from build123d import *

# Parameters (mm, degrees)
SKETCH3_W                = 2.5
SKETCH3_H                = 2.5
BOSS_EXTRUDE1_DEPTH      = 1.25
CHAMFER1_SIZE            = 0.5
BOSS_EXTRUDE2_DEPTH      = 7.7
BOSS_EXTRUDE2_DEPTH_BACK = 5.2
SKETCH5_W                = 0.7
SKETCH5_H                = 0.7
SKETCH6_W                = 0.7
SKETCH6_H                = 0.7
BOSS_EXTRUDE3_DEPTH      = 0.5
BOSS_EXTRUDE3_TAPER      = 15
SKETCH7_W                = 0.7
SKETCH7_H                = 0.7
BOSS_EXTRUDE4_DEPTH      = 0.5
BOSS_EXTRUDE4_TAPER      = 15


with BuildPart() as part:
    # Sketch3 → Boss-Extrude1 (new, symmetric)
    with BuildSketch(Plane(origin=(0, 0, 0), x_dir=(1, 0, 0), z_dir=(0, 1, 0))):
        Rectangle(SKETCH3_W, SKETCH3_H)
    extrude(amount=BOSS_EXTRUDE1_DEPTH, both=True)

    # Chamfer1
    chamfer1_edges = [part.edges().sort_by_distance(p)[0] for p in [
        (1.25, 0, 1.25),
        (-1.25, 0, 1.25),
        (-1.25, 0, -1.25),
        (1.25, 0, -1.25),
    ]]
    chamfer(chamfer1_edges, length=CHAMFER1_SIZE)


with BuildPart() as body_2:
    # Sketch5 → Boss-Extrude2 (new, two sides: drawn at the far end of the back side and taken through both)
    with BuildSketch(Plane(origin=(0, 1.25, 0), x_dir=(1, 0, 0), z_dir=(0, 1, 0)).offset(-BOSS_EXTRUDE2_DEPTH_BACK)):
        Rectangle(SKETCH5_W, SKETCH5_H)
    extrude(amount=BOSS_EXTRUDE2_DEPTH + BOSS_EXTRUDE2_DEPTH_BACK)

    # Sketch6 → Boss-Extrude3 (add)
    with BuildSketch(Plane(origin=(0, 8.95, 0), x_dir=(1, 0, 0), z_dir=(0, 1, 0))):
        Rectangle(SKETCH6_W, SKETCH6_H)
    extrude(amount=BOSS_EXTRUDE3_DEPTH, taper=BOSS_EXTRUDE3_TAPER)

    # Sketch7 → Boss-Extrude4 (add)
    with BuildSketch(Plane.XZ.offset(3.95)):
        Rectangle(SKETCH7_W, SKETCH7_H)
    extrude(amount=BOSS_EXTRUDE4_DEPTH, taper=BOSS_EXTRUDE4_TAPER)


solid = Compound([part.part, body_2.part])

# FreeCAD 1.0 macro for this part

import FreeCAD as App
import Part
import Sketcher

V = App.Vector
Q = App.Units.Quantity


def edges_at(feature, points):
    """Names of the edges that pass closest to the given points."""
    edges = feature.Shape.Edges
    near = lambda p: min(range(len(edges)), key=lambda i: edges[i].distToShape(Part.Vertex(*p))[0])
    return sorted({f"Edge{near(p) + 1}" for p in points})

doc = App.newDocument("Part")
body = doc.addObject("PartDesign::Body", "Body")

# Sketch on XZ plane
sketch1 = body.newObject("Sketcher::SketchObject", "Sketch")
sketch1.AttachmentSupport = (doc.getObject("XZ_Plane"), [""])
sketch1.MapMode = "FlatFace"
sketch1.addGeometry([
    Part.LineSegment(V(-1.2, -1.2, 0), V(-1.2, 1.2, 0)),
    Part.LineSegment(V(-1.2, 1.2, 0), V(1.2, 1.2, 0)),
    Part.LineSegment(V(1.2, 1.2, 0), V(1.2, -1.2, 0)),
    Part.LineSegment(V(1.2, -1.2, 0), V(-1.2, -1.2, 0)),
], False)
sketch1.addConstraint([
    Sketcher.Constraint("Coincident", 0, 2, 1, 1),
    Sketcher.Constraint("Coincident", 1, 2, 2, 1),
    Sketcher.Constraint("Coincident", 2, 2, 3, 1),
    Sketcher.Constraint("Coincident", 3, 2, 0, 1),
    Sketcher.Constraint("Vertical", 0),
    Sketcher.Constraint("Horizontal", 1),
    Sketcher.Constraint("Vertical", 2),
    Sketcher.Constraint("Horizontal", 3),
    Sketcher.Constraint("Symmetric", 0, 2, 2, 2, -1, 1),
    Sketcher.Constraint("Equal", 3, 0),
    Sketcher.Constraint("DistanceX", 1, 1, 1, 2, Q("2.5 mm")),
])
pad1 = body.newObject("PartDesign::Pad", "Pad")
pad1.Profile = sketch1
pad1.Length = 2.5
pad1.Midplane = True
doc.recompute()

chamfer = body.newObject("PartDesign::Chamfer", "Chamfer")
chamfer.Base = (pad1, edges_at(pad1, [
    (1.25, 0, 1.25),
    (-1.25, 0, 1.25),
    (-1.25, 0, -1.25),
    (1.25, 0, -1.25),
]))
chamfer.Size = 0.5
body2 = doc.addObject("PartDesign::Body", "Body001")

# Sketch on XZ plane
sketch2 = body2.newObject("Sketcher::SketchObject", "Sketch001")
sketch2.AttachmentSupport = (doc.getObject("XZ_Plane001"), [""])
sketch2.MapMode = "FlatFace"
sketch2.AttachmentOffset = App.Placement(V(0, 0, -1.25), App.Rotation())
sketch2.addGeometry([
    Part.LineSegment(V(-0.3, -0.3, 0), V(-0.3, 0.3, 0)),
    Part.LineSegment(V(-0.3, 0.3, 0), V(0.3, 0.3, 0)),
    Part.LineSegment(V(0.3, 0.3, 0), V(0.3, -0.3, 0)),
    Part.LineSegment(V(0.3, -0.3, 0), V(-0.3, -0.3, 0)),
], False)
sketch2.addConstraint([
    Sketcher.Constraint("Coincident", 0, 2, 1, 1),
    Sketcher.Constraint("Coincident", 1, 2, 2, 1),
    Sketcher.Constraint("Coincident", 2, 2, 3, 1),
    Sketcher.Constraint("Coincident", 3, 2, 0, 1),
    Sketcher.Constraint("Vertical", 0),
    Sketcher.Constraint("Horizontal", 1),
    Sketcher.Constraint("Vertical", 2),
    Sketcher.Constraint("Horizontal", 3),
    Sketcher.Constraint("Symmetric", 0, 2, 2, 2, -1, 1),
    Sketcher.Constraint("Equal", 3, 0),
    Sketcher.Constraint("DistanceX", 1, 1, 1, 2, Q("0.7 mm")),
])
pad2 = body2.newObject("PartDesign::Pad", "Pad001")
pad2.Profile = sketch2
pad2.Type = "TwoLengths"
pad2.Length = 7.7
pad2.Length2 = 5.2
pad2.Reversed = True

# Sketch on XZ plane
sketch3 = body2.newObject("Sketcher::SketchObject", "Sketch002")
sketch3.AttachmentSupport = (doc.getObject("XZ_Plane001"), [""])
sketch3.MapMode = "FlatFace"
sketch3.AttachmentOffset = App.Placement(V(0, 0, -8.95), App.Rotation())
sketch3.addGeometry([
    Part.LineSegment(V(-0.3, -0.3, 0), V(-0.3, 0.3, 0)),
    Part.LineSegment(V(-0.3, 0.3, 0), V(0.3, 0.3, 0)),
    Part.LineSegment(V(0.3, 0.3, 0), V(0.3, -0.3, 0)),
    Part.LineSegment(V(0.3, -0.3, 0), V(-0.3, -0.3, 0)),
], False)
sketch3.addConstraint([
    Sketcher.Constraint("Coincident", 0, 2, 1, 1),
    Sketcher.Constraint("Coincident", 1, 2, 2, 1),
    Sketcher.Constraint("Coincident", 2, 2, 3, 1),
    Sketcher.Constraint("Coincident", 3, 2, 0, 1),
    Sketcher.Constraint("Vertical", 0),
    Sketcher.Constraint("Horizontal", 1),
    Sketcher.Constraint("Vertical", 2),
    Sketcher.Constraint("Horizontal", 3),
    Sketcher.Constraint("Symmetric", 0, 2, 2, 2, -1, 1),
    Sketcher.Constraint("Equal", 3, 0),
    Sketcher.Constraint("DistanceX", 1, 1, 1, 2, Q("0.7 mm")),
])
pad3 = body2.newObject("PartDesign::Pad", "Pad002")
pad3.Profile = sketch3
pad3.Length = 0.5
pad3.Reversed = True
pad3.TaperAngle = -15

# Sketch on XZ plane
sketch4 = body2.newObject("Sketcher::SketchObject", "Sketch003")
sketch4.AttachmentSupport = (doc.getObject("XZ_Plane001"), [""])
sketch4.MapMode = "FlatFace"
sketch4.AttachmentOffset = App.Placement(V(0, 0, 3.95), App.Rotation())
sketch4.addGeometry([
    Part.LineSegment(V(-0.3, 0.3, 0), V(-0.3, -0.3, 0)),
    Part.LineSegment(V(-0.3, -0.3, 0), V(0.3, -0.3, 0)),
    Part.LineSegment(V(0.3, -0.3, 0), V(0.3, 0.3, 0)),
    Part.LineSegment(V(0.3, 0.3, 0), V(-0.3, 0.3, 0)),
], False)
sketch4.addConstraint([
    Sketcher.Constraint("Coincident", 0, 2, 1, 1),
    Sketcher.Constraint("Coincident", 1, 2, 2, 1),
    Sketcher.Constraint("Coincident", 2, 2, 3, 1),
    Sketcher.Constraint("Coincident", 3, 2, 0, 1),
    Sketcher.Constraint("Vertical", 0),
    Sketcher.Constraint("Horizontal", 1),
    Sketcher.Constraint("Vertical", 2),
    Sketcher.Constraint("Horizontal", 3),
    Sketcher.Constraint("Symmetric", 0, 2, 2, 2, -1, 1),
    Sketcher.Constraint("Equal", 3, 0),
    Sketcher.Constraint("DistanceX", 1, 1, 1, 2, Q("0.7 mm")),
])
pad4 = body2.newObject("PartDesign::Pad", "Pad003")
pad4.Profile = sketch4
pad4.Length = 0.5
pad4.TaperAngle = -15

doc.recompute()
